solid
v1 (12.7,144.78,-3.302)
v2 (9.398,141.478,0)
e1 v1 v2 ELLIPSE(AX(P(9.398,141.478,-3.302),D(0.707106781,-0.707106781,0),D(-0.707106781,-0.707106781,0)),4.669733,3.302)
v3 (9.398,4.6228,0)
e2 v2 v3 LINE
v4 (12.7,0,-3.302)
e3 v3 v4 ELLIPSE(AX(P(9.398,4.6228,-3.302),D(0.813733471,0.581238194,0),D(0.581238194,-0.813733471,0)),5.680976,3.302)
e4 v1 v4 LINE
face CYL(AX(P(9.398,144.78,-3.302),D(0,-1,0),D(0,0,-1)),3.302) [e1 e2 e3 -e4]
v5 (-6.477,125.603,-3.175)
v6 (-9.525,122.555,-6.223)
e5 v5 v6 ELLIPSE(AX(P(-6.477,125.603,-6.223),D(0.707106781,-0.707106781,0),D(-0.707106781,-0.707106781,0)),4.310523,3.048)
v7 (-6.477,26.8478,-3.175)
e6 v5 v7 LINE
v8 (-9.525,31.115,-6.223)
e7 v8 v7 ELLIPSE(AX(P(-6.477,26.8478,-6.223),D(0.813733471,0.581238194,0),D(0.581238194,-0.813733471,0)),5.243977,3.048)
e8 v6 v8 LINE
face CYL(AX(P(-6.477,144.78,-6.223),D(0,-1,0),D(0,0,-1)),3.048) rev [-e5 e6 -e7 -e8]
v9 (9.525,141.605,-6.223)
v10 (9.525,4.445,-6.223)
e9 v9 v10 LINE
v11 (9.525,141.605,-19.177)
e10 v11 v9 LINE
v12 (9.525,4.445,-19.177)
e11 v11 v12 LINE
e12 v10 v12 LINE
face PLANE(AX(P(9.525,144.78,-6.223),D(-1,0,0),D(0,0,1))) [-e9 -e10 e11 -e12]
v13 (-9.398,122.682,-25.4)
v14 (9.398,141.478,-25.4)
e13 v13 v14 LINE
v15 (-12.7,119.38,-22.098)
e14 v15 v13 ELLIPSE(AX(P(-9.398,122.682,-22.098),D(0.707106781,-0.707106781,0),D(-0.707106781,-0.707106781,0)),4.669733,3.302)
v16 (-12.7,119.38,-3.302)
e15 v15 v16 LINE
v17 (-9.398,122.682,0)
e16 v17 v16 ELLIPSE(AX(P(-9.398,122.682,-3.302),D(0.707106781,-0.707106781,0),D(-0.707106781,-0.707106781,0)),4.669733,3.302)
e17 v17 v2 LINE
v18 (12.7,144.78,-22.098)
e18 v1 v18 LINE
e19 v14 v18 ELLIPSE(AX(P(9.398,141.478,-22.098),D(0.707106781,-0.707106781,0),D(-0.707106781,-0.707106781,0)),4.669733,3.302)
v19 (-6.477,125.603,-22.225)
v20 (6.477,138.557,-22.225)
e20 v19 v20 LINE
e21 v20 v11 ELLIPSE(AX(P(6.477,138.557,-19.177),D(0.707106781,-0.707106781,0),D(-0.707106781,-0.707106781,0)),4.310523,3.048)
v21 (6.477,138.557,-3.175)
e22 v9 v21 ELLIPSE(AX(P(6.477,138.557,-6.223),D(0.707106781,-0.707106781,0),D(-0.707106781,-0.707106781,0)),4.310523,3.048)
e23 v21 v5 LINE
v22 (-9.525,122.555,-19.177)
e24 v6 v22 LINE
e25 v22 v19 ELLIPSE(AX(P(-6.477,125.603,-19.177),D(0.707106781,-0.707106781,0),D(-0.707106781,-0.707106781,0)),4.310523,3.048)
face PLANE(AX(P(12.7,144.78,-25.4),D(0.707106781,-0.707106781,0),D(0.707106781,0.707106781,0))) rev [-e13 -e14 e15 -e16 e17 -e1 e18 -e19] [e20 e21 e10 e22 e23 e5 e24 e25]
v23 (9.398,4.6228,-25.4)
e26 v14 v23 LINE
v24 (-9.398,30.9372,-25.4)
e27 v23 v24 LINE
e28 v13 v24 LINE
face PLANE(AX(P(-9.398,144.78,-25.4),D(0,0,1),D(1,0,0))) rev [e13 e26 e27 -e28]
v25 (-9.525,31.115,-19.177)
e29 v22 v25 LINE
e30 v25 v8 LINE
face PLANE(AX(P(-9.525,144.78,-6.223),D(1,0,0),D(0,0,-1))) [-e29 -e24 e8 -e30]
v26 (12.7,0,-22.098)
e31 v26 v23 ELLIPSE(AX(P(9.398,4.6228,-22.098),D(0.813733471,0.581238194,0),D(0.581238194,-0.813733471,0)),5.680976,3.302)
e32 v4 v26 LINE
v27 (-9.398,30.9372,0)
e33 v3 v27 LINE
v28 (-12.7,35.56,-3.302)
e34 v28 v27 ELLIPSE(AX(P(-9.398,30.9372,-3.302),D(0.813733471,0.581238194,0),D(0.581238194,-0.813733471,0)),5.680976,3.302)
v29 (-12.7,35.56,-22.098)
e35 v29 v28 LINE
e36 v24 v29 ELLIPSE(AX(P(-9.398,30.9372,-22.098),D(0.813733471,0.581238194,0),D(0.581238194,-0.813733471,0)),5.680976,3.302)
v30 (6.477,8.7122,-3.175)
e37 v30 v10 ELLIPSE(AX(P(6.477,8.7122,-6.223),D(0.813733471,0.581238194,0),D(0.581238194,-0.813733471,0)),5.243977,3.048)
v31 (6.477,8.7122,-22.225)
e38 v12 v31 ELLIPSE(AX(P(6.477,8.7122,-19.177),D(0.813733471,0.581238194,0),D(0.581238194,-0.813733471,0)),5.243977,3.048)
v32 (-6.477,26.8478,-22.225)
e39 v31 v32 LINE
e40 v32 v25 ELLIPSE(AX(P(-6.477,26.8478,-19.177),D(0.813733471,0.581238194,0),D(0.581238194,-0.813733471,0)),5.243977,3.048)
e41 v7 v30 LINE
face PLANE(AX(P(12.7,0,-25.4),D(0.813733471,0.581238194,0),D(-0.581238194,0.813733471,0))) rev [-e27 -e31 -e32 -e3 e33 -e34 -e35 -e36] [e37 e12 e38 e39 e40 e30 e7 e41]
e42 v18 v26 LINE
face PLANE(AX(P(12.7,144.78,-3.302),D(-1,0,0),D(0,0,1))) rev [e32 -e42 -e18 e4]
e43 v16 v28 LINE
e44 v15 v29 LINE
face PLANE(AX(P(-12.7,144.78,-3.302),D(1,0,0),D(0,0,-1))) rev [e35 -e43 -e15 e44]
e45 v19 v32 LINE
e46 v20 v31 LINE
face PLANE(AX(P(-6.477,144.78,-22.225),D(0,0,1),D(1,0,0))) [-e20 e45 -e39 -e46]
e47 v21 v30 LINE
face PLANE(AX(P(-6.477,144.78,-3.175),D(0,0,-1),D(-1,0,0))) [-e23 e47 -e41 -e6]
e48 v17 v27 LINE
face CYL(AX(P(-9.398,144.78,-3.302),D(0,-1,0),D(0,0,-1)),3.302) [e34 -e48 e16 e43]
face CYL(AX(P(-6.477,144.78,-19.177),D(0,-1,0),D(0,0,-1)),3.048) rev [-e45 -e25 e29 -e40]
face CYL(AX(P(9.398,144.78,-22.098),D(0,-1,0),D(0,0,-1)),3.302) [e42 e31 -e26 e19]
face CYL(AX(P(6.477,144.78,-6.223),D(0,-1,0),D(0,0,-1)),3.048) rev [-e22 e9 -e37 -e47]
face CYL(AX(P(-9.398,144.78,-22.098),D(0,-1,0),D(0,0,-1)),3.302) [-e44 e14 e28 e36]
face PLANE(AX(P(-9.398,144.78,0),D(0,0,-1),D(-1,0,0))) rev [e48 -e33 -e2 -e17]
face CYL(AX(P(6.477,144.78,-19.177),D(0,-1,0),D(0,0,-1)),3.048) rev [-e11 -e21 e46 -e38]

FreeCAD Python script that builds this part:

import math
import FreeCAD as App
import Part
import Sketcher

V = App.Vector
Q = App.Units.Quantity


def add_polygon(sketch, points):
    """Adds a closed chain of lines whose ends are joined by coincident constraints."""
    first, n = sketch.GeometryCount, len(points)
    for a, b in zip(points, points[1:] + points[:1]):
        sketch.addGeometry(Part.LineSegment(App.Vector(*a, 0), App.Vector(*b, 0)), False)
    for i in range(n):
        sketch.addConstraint(Sketcher.Constraint("Coincident", first + i, 2, first + (i + 1) % n, 1))

doc = App.newDocument("Part")
body = doc.addObject("PartDesign::Body", "Body")

# Sketch on XZ plane
sketch1 = body.newObject("Sketcher::SketchObject", "Sketch")
sketch1.AttachmentSupport = (doc.getObject("XZ_Plane"), [""])
sketch1.MapMode = "FlatFace"
sketch1.addGeometry([
    Part.LineSegment(V(-9.4, 0, 0), V(9.4, 0, 0)),  # 0
    Part.ArcOfCircle(Part.Circle(V(9.4, -3.3, 0), V(0, 0, 1), 3.3), math.radians(0), math.radians(90)),  # 1
    Part.LineSegment(V(12.7, -3.3, 0), V(12.7, -22.1, 0)),  # 2
    Part.ArcOfCircle(Part.Circle(V(9.4, -22.1, 0), V(0, 0, 1), 3.3), math.radians(-90), math.radians(0)),  # 3
    Part.LineSegment(V(9.4, -25.4, 0), V(-9.4, -25.4, 0)),  # 4
    Part.ArcOfCircle(Part.Circle(V(-9.4, -22.1, 0), V(0, 0, 1), 3.3), math.radians(-180), math.radians(-90)),  # 5
    Part.LineSegment(V(-12.7, -22.1, 0), V(-12.7, -3.3, 0)),  # 6
    Part.ArcOfCircle(Part.Circle(V(-9.4, -3.3, 0), V(0, 0, 1), 3.3), math.radians(90), math.radians(180)),  # 7
    Part.LineSegment(V(6.5, -3.2, 0), V(-6.5, -3.2, 0)),  # 8
    Part.ArcOfCircle(Part.Circle(V(-6.5, -6.2, 0), V(0, 0, 1), 3), math.radians(90), math.radians(180)),  # 9
    Part.LineSegment(V(-9.5, -6.2, 0), V(-9.5, -19.2, 0)),  # 10
    Part.ArcOfCircle(Part.Circle(V(-6.5, -19.2, 0), V(0, 0, 1), 3), math.radians(180), math.radians(270)),  # 11
    Part.LineSegment(V(-6.5, -22.2, 0), V(6.5, -22.2, 0)),  # 12
    Part.ArcOfCircle(Part.Circle(V(6.5, -19.2, 0), V(0, 0, 1), 3), math.radians(-90), math.radians(0)),  # 13
    Part.LineSegment(V(9.5, -19.2, 0), V(9.5, -6.2, 0)),  # 14
    Part.ArcOfCircle(Part.Circle(V(6.5, -6.2, 0), V(0, 0, 1), 3), math.radians(0), math.radians(90)),  # 15
], False)
sketch1.addConstraint([
    Sketcher.Constraint("Tangent", 0, 2, 1, 2),
    Sketcher.Constraint("Tangent", 1, 1, 2, 1),
    Sketcher.Constraint("Tangent", 2, 2, 3, 2),
    Sketcher.Constraint("Tangent", 3, 1, 4, 1),
    Sketcher.Constraint("Tangent", 4, 2, 5, 2),
    Sketcher.Constraint("Tangent", 5, 1, 6, 1),
    Sketcher.Constraint("Tangent", 6, 2, 7, 2),
    Sketcher.Constraint("Tangent", 7, 1, 0, 1),
    Sketcher.Constraint("Tangent", 8, 2, 9, 1),
    Sketcher.Constraint("Tangent", 9, 2, 10, 1),
    Sketcher.Constraint("Tangent", 10, 2, 11, 1),
    Sketcher.Constraint("Tangent", 11, 2, 12, 1),
    Sketcher.Constraint("Tangent", 12, 2, 13, 1),
    Sketcher.Constraint("Tangent", 13, 2, 14, 1),
    Sketcher.Constraint("Tangent", 14, 2, 15, 1),
    Sketcher.Constraint("Tangent", 15, 2, 8, 1),
    Sketcher.Constraint("Horizontal", 0),
    Sketcher.Constraint("Vertical", 2),
    Sketcher.Constraint("Horizontal", 4),
    Sketcher.Constraint("Vertical", 6),
    Sketcher.Constraint("Horizontal", 8),
    Sketcher.Constraint("Vertical", 10),
    Sketcher.Constraint("Horizontal", 12),
    Sketcher.Constraint("Vertical", 14),
    Sketcher.Constraint("Equal", 1, 3),
    Sketcher.Constraint("Equal", 3, 5),
    Sketcher.Constraint("Equal", 5, 7),
    Sketcher.Constraint("Equal", 9, 11),
    Sketcher.Constraint("Equal", 11, 13),
    Sketcher.Constraint("Equal", 13, 15),
    Sketcher.Constraint("Symmetric", 0, 2, 7, 1, -1, 1),
    Sketcher.Constraint("Equal", 4, 2),
    Sketcher.Constraint("Equal", 12, 10),
    Sketcher.Constraint("Radius", 1, Q("0.13 in")),
    Sketcher.Constraint("Radius", 9, Q("0.12 in")),
    Sketcher.Constraint("DistanceY", 3, 1, -1, 1, Q("1 in")),
    Sketcher.Constraint("DistanceX", 8, 2, 8, 1, Q("0.51 in")),
    Sketcher.Constraint("DistanceX", 9, 3, -1, 1, Q("0.255 in")),
    Sketcher.Constraint("DistanceY", 9, 3, -1, 1, Q("0.245 in")),
])
pad1 = body.newObject("PartDesign::Pad", "Pad")
pad1.Profile = sketch1
pad1.Length = Q("5.7 in")
pad1.Reversed = True

# Sketch on XY plane
sketch2 = body.newObject("Sketcher::SketchObject", "Sketch001")
sketch2.AttachmentSupport = (doc.getObject("XY_Plane"), [""])
sketch2.MapMode = "FlatFace"
add_polygon(sketch2, [(-13, 119), (13, 145), (-13, 145)])  # lines 0-2
add_polygon(sketch2, [(13, 0), (-13, 36), (-13, 0)])  # lines 3-5
sketch2.addConstraint([
    Sketcher.Constraint("Horizontal", 1),
    Sketcher.Constraint("Vertical", 2),
    Sketcher.Constraint("Vertical", 4),
    Sketcher.Constraint("Horizontal", 5),
    Sketcher.Constraint("Symmetric", 4, 2, 5, 2, -1, 1),
    Sketcher.Constraint("Vertical", 2, 2, 3, 2),
    Sketcher.Constraint("Vertical", 0, 2, 5, 2),
    Sketcher.Constraint("Equal", 5, 2),
    Sketcher.Constraint("DistanceX", 1, 2, 1, 1, Q("1 in")),
    Sketcher.Constraint("DistanceY", 4, 2, 4, 1, Q("1.4 in")),
    Sketcher.Constraint("DistanceY", -1, 1, 0, 2, Q("5.7 in")),
])
pocket1 = body.newObject("PartDesign::Pocket", "Pocket")
pocket1.Profile = sketch2
pocket1.Type = "ThroughAll"

doc.recompute()
